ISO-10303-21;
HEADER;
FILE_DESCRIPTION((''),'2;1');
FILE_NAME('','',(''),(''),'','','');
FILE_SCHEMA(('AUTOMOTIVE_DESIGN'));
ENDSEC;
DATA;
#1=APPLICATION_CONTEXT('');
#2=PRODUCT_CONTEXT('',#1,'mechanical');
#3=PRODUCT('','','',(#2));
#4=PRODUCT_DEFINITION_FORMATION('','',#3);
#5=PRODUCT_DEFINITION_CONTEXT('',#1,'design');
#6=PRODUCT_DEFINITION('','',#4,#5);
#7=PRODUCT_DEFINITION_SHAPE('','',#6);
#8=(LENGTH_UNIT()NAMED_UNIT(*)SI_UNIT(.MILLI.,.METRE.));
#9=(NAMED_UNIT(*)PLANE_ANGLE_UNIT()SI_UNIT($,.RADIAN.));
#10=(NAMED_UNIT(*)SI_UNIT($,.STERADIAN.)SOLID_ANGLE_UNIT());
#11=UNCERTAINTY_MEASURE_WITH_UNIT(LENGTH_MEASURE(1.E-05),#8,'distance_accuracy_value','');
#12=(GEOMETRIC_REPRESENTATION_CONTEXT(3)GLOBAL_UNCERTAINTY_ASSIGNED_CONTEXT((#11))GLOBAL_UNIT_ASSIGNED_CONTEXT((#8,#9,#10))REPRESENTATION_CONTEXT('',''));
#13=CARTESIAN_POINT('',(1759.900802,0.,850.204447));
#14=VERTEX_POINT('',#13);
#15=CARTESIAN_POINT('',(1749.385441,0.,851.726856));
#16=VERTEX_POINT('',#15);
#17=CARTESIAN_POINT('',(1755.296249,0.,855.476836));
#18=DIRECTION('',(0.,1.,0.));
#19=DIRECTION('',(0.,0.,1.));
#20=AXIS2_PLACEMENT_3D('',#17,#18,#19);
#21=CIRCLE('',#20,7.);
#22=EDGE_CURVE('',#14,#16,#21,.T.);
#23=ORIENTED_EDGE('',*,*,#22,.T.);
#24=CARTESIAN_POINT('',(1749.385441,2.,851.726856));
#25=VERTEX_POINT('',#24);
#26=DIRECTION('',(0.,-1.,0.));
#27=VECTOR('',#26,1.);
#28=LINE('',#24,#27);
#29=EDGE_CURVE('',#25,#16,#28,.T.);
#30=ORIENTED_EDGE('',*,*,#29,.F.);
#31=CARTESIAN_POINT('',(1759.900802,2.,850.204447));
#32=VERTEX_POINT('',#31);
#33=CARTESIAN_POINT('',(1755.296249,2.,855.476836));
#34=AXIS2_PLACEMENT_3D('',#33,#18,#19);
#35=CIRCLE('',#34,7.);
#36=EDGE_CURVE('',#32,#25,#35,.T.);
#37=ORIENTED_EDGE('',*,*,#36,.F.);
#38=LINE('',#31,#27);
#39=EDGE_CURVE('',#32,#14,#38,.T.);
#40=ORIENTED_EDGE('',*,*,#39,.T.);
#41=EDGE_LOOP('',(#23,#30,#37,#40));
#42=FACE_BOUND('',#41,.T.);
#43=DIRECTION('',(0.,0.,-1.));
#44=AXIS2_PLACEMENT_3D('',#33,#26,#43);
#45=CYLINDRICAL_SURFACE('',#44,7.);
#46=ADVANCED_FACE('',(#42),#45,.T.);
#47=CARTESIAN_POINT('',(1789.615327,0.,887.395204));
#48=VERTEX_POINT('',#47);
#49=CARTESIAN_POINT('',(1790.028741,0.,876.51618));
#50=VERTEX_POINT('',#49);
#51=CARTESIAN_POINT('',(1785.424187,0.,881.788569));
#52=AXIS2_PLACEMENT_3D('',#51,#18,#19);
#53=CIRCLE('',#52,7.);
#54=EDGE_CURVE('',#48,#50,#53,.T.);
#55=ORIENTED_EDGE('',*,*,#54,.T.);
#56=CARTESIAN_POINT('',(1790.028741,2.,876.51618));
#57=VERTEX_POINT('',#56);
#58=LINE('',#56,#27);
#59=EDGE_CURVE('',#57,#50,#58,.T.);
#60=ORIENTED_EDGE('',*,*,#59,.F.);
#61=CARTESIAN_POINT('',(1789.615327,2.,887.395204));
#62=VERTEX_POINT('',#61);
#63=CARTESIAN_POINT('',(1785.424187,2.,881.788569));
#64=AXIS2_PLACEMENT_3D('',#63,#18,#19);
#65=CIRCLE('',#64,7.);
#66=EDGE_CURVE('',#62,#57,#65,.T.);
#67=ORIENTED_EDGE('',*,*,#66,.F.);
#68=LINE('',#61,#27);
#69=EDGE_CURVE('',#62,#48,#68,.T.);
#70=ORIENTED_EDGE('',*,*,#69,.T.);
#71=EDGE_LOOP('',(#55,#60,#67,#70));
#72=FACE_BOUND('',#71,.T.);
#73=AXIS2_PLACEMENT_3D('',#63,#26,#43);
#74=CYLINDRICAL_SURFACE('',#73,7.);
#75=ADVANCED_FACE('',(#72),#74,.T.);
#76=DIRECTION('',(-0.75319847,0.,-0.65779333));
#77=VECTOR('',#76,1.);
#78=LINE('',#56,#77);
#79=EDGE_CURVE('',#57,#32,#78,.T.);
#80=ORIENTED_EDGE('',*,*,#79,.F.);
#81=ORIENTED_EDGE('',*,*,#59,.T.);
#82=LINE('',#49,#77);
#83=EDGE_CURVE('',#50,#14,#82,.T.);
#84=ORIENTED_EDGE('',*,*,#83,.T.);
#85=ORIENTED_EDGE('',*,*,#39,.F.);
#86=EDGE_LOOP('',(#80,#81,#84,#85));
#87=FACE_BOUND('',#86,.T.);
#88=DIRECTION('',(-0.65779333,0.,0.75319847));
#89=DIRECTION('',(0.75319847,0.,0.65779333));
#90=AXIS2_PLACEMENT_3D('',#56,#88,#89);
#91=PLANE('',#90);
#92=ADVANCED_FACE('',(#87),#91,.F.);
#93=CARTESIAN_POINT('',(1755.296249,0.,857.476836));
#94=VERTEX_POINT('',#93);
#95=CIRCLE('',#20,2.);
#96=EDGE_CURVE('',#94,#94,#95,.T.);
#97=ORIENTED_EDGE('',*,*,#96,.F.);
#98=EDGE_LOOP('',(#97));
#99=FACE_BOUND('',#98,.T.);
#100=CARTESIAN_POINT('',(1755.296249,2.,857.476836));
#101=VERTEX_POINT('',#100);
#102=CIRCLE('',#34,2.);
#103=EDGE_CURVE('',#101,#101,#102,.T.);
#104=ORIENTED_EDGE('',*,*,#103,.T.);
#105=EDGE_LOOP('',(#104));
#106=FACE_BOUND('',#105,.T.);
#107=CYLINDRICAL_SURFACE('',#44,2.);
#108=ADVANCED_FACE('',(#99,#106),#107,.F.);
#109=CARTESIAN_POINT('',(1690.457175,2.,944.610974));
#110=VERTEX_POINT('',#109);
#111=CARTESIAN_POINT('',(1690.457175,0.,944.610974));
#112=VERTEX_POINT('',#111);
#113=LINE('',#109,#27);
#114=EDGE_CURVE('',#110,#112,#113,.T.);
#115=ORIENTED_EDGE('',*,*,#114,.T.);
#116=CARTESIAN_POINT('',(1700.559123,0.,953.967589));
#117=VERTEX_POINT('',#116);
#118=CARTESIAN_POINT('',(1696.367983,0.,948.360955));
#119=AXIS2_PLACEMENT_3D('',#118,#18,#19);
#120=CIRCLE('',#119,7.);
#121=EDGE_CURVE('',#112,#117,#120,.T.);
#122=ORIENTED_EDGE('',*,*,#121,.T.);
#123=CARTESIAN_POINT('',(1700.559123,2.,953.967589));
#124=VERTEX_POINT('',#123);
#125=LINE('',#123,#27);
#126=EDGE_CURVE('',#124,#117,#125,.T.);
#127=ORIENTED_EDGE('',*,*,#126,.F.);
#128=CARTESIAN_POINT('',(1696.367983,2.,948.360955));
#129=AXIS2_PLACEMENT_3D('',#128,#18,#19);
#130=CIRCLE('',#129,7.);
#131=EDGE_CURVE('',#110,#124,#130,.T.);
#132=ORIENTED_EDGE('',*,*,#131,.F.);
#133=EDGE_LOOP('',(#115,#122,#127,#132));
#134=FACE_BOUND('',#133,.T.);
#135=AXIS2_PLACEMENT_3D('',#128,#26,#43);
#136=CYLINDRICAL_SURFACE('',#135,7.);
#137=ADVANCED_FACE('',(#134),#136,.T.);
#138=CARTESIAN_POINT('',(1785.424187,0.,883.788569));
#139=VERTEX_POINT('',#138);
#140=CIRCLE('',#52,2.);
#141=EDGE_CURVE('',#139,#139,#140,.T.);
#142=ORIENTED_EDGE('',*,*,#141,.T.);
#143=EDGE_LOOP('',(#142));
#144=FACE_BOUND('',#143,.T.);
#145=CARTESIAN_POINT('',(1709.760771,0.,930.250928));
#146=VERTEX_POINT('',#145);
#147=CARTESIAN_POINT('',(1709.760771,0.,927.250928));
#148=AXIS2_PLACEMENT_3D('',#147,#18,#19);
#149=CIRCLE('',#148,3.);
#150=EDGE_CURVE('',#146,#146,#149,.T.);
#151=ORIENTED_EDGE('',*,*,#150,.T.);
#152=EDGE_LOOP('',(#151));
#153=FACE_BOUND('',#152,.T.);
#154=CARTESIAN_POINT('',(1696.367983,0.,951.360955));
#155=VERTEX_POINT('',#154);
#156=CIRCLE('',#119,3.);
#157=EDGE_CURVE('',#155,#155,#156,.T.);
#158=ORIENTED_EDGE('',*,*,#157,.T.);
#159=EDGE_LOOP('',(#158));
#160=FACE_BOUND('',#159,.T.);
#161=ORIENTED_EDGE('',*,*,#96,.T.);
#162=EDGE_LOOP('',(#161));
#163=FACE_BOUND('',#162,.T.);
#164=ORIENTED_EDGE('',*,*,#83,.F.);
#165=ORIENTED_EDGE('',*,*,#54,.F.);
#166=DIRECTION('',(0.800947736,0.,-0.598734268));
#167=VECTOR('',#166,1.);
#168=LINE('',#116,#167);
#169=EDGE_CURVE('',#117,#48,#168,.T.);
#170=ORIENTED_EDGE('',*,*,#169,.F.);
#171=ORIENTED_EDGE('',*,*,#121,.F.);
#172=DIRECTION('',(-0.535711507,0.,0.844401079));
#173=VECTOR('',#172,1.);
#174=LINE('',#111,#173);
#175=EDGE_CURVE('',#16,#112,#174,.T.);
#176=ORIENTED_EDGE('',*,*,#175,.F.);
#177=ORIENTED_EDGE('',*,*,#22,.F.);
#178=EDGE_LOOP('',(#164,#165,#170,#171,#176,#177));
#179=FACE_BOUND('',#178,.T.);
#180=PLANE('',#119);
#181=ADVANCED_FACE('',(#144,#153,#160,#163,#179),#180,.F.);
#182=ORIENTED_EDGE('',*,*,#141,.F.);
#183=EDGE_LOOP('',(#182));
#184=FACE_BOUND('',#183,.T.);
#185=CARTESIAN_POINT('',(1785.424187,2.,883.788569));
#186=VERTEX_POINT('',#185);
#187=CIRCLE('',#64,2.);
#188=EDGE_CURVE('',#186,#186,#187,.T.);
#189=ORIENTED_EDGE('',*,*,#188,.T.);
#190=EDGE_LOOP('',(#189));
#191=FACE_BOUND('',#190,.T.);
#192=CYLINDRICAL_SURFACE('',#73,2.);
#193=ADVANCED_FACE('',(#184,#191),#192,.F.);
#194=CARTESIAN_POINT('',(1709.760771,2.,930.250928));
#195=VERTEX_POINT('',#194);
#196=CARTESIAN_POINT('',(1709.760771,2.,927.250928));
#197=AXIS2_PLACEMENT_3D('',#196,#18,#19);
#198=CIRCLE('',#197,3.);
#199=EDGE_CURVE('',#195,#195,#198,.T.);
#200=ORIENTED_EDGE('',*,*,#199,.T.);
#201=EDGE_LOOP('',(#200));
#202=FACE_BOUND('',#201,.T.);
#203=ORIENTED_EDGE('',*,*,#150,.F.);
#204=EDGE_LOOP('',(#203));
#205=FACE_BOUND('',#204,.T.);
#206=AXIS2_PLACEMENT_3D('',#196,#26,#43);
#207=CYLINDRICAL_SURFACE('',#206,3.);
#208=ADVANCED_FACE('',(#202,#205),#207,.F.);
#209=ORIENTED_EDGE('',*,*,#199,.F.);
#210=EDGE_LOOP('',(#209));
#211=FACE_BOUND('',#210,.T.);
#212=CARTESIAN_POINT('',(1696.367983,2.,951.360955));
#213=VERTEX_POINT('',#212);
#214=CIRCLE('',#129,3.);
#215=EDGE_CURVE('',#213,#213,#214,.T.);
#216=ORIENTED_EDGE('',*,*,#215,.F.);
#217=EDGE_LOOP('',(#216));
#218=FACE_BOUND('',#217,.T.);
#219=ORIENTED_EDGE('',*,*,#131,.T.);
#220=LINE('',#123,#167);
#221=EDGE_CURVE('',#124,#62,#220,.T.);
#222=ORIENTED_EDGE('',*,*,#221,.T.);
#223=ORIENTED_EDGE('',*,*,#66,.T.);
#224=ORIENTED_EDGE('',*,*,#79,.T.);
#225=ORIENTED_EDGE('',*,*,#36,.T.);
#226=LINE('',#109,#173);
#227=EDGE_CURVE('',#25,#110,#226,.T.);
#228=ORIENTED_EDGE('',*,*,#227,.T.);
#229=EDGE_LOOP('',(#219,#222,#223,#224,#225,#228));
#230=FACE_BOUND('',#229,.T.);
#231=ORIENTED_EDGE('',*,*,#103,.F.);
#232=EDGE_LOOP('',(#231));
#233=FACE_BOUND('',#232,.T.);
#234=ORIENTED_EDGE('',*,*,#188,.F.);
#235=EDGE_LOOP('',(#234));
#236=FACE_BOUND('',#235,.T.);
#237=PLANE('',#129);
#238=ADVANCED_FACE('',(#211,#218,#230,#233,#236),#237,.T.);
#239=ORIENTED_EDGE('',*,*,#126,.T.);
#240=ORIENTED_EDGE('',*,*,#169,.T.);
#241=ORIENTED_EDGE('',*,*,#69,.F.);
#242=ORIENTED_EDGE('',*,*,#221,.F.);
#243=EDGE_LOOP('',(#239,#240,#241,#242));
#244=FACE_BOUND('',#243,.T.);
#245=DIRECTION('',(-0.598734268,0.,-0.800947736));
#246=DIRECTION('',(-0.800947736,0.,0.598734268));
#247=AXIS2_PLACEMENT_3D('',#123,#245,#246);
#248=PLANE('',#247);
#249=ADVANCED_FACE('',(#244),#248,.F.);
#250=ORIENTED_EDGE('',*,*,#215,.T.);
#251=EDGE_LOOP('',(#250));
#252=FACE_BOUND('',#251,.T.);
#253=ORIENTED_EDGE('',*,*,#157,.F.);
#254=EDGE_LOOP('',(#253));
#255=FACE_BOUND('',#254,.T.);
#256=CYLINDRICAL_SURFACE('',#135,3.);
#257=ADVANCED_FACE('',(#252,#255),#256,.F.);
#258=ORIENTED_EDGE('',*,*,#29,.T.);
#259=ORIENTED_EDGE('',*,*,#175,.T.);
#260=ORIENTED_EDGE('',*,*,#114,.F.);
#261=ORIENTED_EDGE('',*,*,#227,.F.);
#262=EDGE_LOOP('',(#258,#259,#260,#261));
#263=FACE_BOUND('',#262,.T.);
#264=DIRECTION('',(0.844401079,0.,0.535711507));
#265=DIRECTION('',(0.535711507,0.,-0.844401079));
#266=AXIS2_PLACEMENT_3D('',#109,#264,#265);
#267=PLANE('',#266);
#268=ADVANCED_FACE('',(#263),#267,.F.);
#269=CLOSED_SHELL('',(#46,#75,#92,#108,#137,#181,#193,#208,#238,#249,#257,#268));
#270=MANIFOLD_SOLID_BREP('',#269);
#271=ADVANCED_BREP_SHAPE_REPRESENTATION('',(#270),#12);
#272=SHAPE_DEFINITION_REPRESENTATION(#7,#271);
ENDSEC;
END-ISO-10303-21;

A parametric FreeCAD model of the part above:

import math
import FreeCAD as App
import Part
import Sketcher

V = App.Vector

doc = App.newDocument("Part")
body = doc.addObject("PartDesign::Body", "Body")

# Sketch on XZ plane
sketch1 = doc.addObject("Sketcher::SketchObject", "Sketch")
body.addObject(sketch1)
sketch1.AttachmentSupport = (doc.XZ_Plane, [""])
sketch1.MapMode = "FlatFace"
sketch1.addGeometry(Part.LineSegment(V(1700.6, 954, 0), V(1789.6, 887.4, 0)), False)
sketch1.addGeometry(Part.ArcOfCircle(Part.Circle(V(1785.4, 881.8, 0), V(0, 0, 1), 7), math.radians(-49), math.radians(53)), False)
sketch1.addGeometry(Part.LineSegment(V(1790, 876.5, 0), V(1759.9, 850.2, 0)), False)
sketch1.addGeometry(Part.ArcOfCircle(Part.Circle(V(1755.3, 855.5, 0), V(0, 0, 1), 7), math.radians(-148), math.radians(-49)), False)
sketch1.addGeometry(Part.LineSegment(V(1749.4, 851.7, 0), V(1690.5, 944.6, 0)), False)
sketch1.addGeometry(Part.ArcOfCircle(Part.Circle(V(1696.4, 948.4, 0), V(0, 0, 1), 7), math.radians(53), math.radians(212)), False)
sketch1.addGeometry(Part.Circle(V(1696.4, 948.4, 0), V(0, 0, 1), 3), False)
sketch1.addGeometry(Part.Circle(V(1709.8, 927.3, 0), V(0, 0, 1), 3), False)
sketch1.addGeometry(Part.Circle(V(1785.4, 881.8, 0), V(0, 0, 1), 2), False)
sketch1.addGeometry(Part.Circle(V(1755.3, 855.5, 0), V(0, 0, 1), 2), False)
sketch1.addConstraint(Sketcher.Constraint("Tangent", 0, 2, 1, 2))
sketch1.addConstraint(Sketcher.Constraint("Tangent", 1, 1, 2, 1))
sketch1.addConstraint(Sketcher.Constraint("Tangent", 2, 2, 3, 2))
sketch1.addConstraint(Sketcher.Constraint("Tangent", 3, 1, 4, 1))
sketch1.addConstraint(Sketcher.Constraint("Tangent", 4, 2, 5, 2))
sketch1.addConstraint(Sketcher.Constraint("Tangent", 5, 1, 0, 1))
sketch1.addConstraint(Sketcher.Constraint("Coincident", 6, 3, 5, 3))
sketch1.addConstraint(Sketcher.Constraint("Coincident", 8, 3, 1, 3))
sketch1.addConstraint(Sketcher.Constraint("Coincident", 9, 3, 3, 3))
sketch1.addConstraint(Sketcher.Constraint("Equal", 1, 3))
sketch1.addConstraint(Sketcher.Constraint("Equal", 3, 5))
sketch1.addConstraint(Sketcher.Constraint("Equal", 6, 7))
sketch1.addConstraint(Sketcher.Constraint("Equal", 8, 9))
sketch1.addConstraint(Sketcher.Constraint("Diameter", 6, 6.0))
sketch1.addConstraint(Sketcher.Constraint("Diameter", 8, 4.0))
sketch1.addConstraint(Sketcher.Constraint("Radius", 1, 7.0))
sketch1.addConstraint(Sketcher.Constraint("Distance", 2, 40.0))
sketch1.addConstraint(Sketcher.Constraint("Distance", 4, 110.0))
sketch1.addConstraint(Sketcher.Constraint("DistanceX", -1, 1, 2, 2, 1759.900802))
sketch1.addConstraint(Sketcher.Constraint("DistanceY", -1, 1, 1, 3, 881.788569))
sketch1.addConstraint(Sketcher.Constraint("DistanceX", -1, 1, 3, 3, 1755.296249))
sketch1.addConstraint(Sketcher.Constraint("DistanceX", -1, 1, 7, 3, 1709.760771))
sketch1.addConstraint(Sketcher.Constraint("DistanceX", -1, 1, 3, 1, 1749.385441))
sketch1.addConstraint(Sketcher.Constraint("DistanceY", 3, 3, 7, 3, 71.774092))
pad1 = doc.addObject("PartDesign::Pad", "Pad")
body.addObject(pad1)
pad1.Profile = sketch1
pad1.Length = 2
pad1.Reversed = True

doc.recompute()
